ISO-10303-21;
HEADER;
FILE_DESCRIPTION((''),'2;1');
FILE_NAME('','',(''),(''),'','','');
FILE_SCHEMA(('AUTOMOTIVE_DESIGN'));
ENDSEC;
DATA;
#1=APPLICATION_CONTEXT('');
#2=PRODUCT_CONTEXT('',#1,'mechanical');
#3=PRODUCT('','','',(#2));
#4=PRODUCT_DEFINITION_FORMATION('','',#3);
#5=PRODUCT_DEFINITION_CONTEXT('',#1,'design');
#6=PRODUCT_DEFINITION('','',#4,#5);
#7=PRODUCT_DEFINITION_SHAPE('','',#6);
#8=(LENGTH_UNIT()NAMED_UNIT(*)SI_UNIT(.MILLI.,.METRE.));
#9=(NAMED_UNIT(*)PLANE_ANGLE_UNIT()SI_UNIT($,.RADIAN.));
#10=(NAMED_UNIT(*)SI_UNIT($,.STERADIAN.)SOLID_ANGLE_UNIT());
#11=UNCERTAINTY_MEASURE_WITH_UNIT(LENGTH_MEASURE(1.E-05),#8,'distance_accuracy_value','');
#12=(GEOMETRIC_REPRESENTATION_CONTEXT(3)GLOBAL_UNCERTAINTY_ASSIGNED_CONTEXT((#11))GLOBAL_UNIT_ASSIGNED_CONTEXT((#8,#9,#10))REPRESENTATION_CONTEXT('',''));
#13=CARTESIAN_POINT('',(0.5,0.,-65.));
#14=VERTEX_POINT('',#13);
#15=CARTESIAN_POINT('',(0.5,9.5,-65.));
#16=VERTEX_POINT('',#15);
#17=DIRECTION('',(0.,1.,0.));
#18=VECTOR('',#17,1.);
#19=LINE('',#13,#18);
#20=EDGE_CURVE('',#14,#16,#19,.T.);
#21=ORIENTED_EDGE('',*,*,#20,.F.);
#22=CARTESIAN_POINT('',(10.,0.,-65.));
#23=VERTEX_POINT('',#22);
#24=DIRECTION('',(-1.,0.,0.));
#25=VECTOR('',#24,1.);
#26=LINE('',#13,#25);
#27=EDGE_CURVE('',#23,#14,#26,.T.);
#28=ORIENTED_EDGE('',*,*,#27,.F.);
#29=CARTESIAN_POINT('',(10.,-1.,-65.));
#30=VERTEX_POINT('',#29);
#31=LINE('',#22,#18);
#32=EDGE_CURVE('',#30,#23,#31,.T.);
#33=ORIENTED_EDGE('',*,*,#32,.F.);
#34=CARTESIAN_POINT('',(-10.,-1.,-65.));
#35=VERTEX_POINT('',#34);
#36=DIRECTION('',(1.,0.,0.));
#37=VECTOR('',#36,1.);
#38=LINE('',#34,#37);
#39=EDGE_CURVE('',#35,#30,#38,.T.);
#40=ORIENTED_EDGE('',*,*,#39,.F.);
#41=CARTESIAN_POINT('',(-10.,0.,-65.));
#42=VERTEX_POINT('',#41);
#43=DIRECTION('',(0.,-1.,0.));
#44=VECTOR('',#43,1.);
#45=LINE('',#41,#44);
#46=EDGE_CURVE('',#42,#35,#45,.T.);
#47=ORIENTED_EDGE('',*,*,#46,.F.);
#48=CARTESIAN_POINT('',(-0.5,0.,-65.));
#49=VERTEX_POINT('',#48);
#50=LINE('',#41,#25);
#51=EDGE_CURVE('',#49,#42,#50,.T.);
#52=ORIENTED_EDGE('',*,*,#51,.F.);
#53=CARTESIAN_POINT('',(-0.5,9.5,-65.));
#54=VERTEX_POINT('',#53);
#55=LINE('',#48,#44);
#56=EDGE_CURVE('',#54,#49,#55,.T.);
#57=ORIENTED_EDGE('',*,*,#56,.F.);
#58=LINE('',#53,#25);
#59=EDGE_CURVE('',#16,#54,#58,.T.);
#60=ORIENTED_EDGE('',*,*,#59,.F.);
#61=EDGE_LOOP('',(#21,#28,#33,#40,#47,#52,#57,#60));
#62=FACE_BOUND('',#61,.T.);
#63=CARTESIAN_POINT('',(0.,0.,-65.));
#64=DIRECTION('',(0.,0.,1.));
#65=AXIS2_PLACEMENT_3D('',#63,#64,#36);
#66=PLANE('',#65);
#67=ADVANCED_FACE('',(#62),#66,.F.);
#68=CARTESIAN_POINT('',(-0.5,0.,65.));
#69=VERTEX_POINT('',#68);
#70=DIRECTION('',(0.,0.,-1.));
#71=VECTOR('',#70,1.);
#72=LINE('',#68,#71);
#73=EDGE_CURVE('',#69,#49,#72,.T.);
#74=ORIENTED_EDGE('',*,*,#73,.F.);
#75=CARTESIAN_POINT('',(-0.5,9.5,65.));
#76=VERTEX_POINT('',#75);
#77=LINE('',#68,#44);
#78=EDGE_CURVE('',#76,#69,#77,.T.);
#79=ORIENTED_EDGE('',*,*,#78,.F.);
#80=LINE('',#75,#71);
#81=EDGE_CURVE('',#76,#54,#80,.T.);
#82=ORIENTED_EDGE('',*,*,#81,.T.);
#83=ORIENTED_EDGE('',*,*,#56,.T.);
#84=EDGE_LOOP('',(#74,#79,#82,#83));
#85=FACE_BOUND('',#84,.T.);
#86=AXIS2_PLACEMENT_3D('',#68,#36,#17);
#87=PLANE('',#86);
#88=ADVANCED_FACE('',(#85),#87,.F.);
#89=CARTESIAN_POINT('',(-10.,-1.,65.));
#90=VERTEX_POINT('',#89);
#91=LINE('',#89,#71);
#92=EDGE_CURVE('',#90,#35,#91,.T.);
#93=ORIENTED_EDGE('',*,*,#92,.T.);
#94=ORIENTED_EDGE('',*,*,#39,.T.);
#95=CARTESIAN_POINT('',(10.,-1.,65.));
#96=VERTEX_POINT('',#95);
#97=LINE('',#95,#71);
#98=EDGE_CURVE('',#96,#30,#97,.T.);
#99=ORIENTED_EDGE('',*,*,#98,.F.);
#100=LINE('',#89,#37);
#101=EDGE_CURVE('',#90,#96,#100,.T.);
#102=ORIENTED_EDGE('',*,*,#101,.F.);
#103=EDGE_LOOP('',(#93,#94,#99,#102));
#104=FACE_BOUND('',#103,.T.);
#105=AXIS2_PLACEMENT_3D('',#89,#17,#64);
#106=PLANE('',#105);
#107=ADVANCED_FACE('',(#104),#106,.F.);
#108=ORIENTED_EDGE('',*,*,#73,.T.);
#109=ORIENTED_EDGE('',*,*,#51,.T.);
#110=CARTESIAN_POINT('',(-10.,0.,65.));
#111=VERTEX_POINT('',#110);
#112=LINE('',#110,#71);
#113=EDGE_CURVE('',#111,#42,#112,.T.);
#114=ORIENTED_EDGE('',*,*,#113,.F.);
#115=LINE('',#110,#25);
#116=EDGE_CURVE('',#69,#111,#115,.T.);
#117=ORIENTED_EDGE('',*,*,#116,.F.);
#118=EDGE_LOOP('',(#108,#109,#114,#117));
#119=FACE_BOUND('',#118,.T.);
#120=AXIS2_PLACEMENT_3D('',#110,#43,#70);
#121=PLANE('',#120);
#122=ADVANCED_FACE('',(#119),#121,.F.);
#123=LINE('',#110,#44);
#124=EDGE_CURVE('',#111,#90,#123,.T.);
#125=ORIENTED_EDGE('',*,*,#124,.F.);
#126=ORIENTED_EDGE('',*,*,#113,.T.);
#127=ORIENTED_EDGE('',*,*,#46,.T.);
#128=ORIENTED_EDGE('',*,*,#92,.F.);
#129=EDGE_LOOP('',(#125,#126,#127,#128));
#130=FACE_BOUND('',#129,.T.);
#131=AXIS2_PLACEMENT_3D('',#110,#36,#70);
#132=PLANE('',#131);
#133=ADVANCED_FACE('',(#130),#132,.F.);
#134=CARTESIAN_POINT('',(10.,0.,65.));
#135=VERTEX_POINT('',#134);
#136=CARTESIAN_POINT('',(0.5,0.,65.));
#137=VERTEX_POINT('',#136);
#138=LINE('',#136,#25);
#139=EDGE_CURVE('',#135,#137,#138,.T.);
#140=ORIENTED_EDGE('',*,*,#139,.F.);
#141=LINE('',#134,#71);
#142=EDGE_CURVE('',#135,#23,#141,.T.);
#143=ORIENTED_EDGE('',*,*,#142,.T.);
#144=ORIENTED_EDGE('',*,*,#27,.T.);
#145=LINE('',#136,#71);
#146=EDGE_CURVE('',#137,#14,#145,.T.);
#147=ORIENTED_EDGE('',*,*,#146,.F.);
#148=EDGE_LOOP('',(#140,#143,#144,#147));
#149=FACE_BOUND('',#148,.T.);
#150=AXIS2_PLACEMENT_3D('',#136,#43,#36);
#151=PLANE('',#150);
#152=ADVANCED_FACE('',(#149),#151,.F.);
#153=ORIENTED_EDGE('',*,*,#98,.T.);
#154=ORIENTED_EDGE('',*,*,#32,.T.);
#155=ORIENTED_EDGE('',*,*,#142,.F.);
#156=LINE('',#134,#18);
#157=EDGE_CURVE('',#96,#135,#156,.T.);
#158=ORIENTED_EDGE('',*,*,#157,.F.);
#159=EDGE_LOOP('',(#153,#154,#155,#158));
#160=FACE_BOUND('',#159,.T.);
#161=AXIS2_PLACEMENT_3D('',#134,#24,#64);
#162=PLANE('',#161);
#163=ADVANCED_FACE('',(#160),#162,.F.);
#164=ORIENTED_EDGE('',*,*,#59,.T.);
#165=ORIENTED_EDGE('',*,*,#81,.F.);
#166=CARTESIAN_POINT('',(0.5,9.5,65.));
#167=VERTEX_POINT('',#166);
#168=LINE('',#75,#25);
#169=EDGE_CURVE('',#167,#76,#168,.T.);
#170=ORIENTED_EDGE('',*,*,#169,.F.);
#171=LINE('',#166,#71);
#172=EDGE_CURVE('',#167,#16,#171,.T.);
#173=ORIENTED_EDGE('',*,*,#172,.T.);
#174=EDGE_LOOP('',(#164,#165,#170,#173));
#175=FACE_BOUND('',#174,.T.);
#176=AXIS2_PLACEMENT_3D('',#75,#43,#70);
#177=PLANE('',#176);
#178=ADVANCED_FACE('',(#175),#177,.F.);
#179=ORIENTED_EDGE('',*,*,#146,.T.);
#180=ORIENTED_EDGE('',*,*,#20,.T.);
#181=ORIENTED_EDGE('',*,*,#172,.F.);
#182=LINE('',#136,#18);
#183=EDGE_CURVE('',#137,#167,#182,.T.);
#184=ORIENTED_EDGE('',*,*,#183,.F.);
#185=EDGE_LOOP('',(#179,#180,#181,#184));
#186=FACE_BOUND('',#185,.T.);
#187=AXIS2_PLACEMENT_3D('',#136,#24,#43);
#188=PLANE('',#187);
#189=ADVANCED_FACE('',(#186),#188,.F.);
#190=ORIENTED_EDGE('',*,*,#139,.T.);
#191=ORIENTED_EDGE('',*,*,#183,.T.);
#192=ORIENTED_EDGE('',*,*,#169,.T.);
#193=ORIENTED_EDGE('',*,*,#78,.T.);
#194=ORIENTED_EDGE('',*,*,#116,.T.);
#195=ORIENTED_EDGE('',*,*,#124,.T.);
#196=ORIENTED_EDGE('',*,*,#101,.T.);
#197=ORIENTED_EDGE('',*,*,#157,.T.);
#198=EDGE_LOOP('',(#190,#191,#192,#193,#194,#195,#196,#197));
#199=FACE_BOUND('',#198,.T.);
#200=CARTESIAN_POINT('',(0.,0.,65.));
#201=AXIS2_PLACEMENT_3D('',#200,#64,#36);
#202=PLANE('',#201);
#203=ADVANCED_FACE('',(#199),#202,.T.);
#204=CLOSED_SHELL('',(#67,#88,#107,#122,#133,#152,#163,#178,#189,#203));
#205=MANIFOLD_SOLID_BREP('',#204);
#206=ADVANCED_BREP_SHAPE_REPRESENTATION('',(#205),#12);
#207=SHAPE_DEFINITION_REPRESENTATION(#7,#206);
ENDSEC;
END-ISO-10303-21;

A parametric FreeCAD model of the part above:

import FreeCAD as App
import Part
import Sketcher
from FreeCAD import Vector
Q = App.Units.Quantity


def add_polygon(sketch, points):
    """Adds a closed chain of lines whose ends are joined by coincident constraints."""
    first, n = sketch.GeometryCount, len(points)
    for a, b in zip(points, points[1:] + points[:1]):
        sketch.addGeometry(Part.LineSegment(App.Vector(*a, 0), App.Vector(*b, 0)), False)
    for i in range(n):
        sketch.addConstraint(Sketcher.Constraint("Coincident", first + i, 2, first + (i + 1) % n, 1))

doc = App.newDocument("Part")
body = doc.addObject("PartDesign::Body", "Body")

sketch1 = doc.addObject("Sketcher::SketchObject", "Sketch")
body.addObject(sketch1)
sketch1.AttachmentSupport = (doc.XY_Plane, [""])
sketch1.MapMode = "FlatFace"
add_polygon(sketch1, [(-0.5, 0), (-10, 0), (-10, -1), (10, -1), (10, 0), (0.5, 0), (0.5, 9.5), (-0.5, 9.5)])
sketch1.addConstraint(Sketcher.Constraint("Horizontal", 0))
sketch1.addConstraint(Sketcher.Constraint("Vertical", 1))
sketch1.addConstraint(Sketcher.Constraint("Horizontal", 2))
sketch1.addConstraint(Sketcher.Constraint("Vertical", 3))
sketch1.addConstraint(Sketcher.Constraint("Horizontal", 4))
sketch1.addConstraint(Sketcher.Constraint("Vertical", 5))
sketch1.addConstraint(Sketcher.Constraint("Horizontal", 6))
sketch1.addConstraint(Sketcher.Constraint("Vertical", 7))
sketch1.addConstraint(Sketcher.Constraint("Symmetric", 0, 2, 3, 2, -1, 1))
sketch1.addConstraint(Sketcher.Constraint("Symmetric", 4, 2, 7, 2, -2))
sketch1.addConstraint(Sketcher.Constraint("Equal", 6, 1))
sketch1.addConstraint(Sketcher.Constraint("Equal", 4, 5))
sketch1.addConstraint(Sketcher.Constraint("DistanceX", 2, 1, 2, 2, Q("20 mm")))
sketch1.addConstraint(Sketcher.Constraint("DistanceX", 6, 2, 6, 1, Q("1 mm")))
pad1 = doc.addObject("PartDesign::Pad", "Pad")
body.addObject(pad1)
pad1.Profile = sketch1
pad1.Length = 130
pad1.Midplane = True

doc.recompute()
